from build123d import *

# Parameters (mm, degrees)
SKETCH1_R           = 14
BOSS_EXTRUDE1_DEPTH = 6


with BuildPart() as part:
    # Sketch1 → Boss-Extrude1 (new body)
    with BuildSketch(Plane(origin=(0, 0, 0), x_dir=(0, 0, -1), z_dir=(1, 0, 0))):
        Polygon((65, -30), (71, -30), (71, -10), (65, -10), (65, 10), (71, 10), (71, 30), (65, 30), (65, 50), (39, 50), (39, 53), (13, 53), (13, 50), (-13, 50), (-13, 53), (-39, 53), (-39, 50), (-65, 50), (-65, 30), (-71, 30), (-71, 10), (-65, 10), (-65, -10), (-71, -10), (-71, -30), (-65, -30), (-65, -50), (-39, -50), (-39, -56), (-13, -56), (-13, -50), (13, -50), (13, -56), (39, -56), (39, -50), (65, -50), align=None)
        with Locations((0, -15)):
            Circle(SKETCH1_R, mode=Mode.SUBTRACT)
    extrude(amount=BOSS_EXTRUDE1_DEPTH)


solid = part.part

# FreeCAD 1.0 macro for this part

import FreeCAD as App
import Part
import Sketcher
Q = App.Units.Quantity

doc = App.newDocument("Part")
body = doc.addObject("PartDesign::Body", "Body")

sketch1 = body.newObject("Sketcher::SketchObject", "Sketch")
sketch1.AttachmentSupport = (doc.getObject("YZ_Plane"), [""])
sketch1.MapMode = "FlatFace"
sketch1.addGeometry(Part.LineSegment(App.Vector(-30, -65, 0), App.Vector(-30, -71, 0)), False)
sketch1.addGeometry(Part.LineSegment(App.Vector(-30, -71, 0), App.Vector(-10, -71, 0)), False)
sketch1.addGeometry(Part.LineSegment(App.Vector(-10, -71, 0), App.Vector(-10, -65, 0)), False)
sketch1.addGeometry(Part.LineSegment(App.Vector(-10, -65, 0), App.Vector(10, -65, 0)), False)
sketch1.addGeometry(Part.LineSegment(App.Vector(10, -65, 0), App.Vector(10, -71, 0)), False)
sketch1.addGeometry(Part.LineSegment(App.Vector(10, -71, 0), App.Vector(30, -71, 0)), False)
sketch1.addGeometry(Part.LineSegment(App.Vector(30, -71, 0), App.Vector(30, -65, 0)), False)
sketch1.addGeometry(Part.LineSegment(App.Vector(30, -65, 0), App.Vector(50, -65, 0)), False)
sketch1.addGeometry(Part.LineSegment(App.Vector(50, -65, 0), App.Vector(50, -39, 0)), False)
sketch1.addGeometry(Part.LineSegment(App.Vector(50, -39, 0), App.Vector(53, -39, 0)), False)
sketch1.addGeometry(Part.LineSegment(App.Vector(53, -39, 0), App.Vector(53, -13, 0)), False)
sketch1.addGeometry(Part.LineSegment(App.Vector(53, -13, 0), App.Vector(50, -13, 0)), False)
sketch1.addGeometry(Part.LineSegment(App.Vector(50, -13, 0), App.Vector(50, 13, 0)), False)
sketch1.addGeometry(Part.LineSegment(App.Vector(50, 13, 0), App.Vector(53, 13, 0)), False)
sketch1.addGeometry(Part.LineSegment(App.Vector(53, 13, 0), App.Vector(53, 39, 0)), False)
sketch1.addGeometry(Part.LineSegment(App.Vector(53, 39, 0), App.Vector(50, 39, 0)), False)
sketch1.addGeometry(Part.LineSegment(App.Vector(50, 39, 0), App.Vector(50, 65, 0)), False)
sketch1.addGeometry(Part.LineSegment(App.Vector(50, 65, 0), App.Vector(30, 65, 0)), False)
sketch1.addGeometry(Part.LineSegment(App.Vector(30, 65, 0), App.Vector(30, 71, 0)), False)
sketch1.addGeometry(Part.LineSegment(App.Vector(30, 71, 0), App.Vector(10, 71, 0)), False)
sketch1.addGeometry(Part.LineSegment(App.Vector(10, 71, 0), App.Vector(10, 65, 0)), False)
sketch1.addGeometry(Part.LineSegment(App.Vector(10, 65, 0), App.Vector(-10, 65, 0)), False)
sketch1.addGeometry(Part.LineSegment(App.Vector(-10, 65, 0), App.Vector(-10, 71, 0)), False)
sketch1.addGeometry(Part.LineSegment(App.Vector(-10, 71, 0), App.Vector(-30, 71, 0)), False)
sketch1.addGeometry(Part.LineSegment(App.Vector(-30, 71, 0), App.Vector(-30, 65, 0)), False)
sketch1.addGeometry(Part.LineSegment(App.Vector(-30, 65, 0), App.Vector(-50, 65, 0)), False)
sketch1.addGeometry(Part.LineSegment(App.Vector(-50, 65, 0), App.Vector(-50, 39, 0)), False)
sketch1.addGeometry(Part.LineSegment(App.Vector(-50, 39, 0), App.Vector(-56, 39, 0)), False)
sketch1.addGeometry(Part.LineSegment(App.Vector(-56, 39, 0), App.Vector(-56, 13, 0)), False)
sketch1.addGeometry(Part.LineSegment(App.Vector(-56, 13, 0), App.Vector(-50, 13, 0)), False)
sketch1.addGeometry(Part.LineSegment(App.Vector(-50, 13, 0), App.Vector(-50, -13, 0)), False)
sketch1.addGeometry(Part.LineSegment(App.Vector(-50, -13, 0), App.Vector(-56, -13, 0)), False)
sketch1.addGeometry(Part.LineSegment(App.Vector(-56, -13, 0), App.Vector(-56, -39, 0)), False)
sketch1.addGeometry(Part.LineSegment(App.Vector(-56, -39, 0), App.Vector(-50, -39, 0)), False)
sketch1.addGeometry(Part.LineSegment(App.Vector(-50, -39, 0), App.Vector(-50, -65, 0)), False)
sketch1.addGeometry(Part.LineSegment(App.Vector(-50, -65, 0), App.Vector(-30, -65, 0)), False)
sketch1.addGeometry(Part.Circle(App.Vector(-15, 0, 0), App.Vector(0, 0, 1), 14), False)
sketch1.addConstraint(Sketcher.Constraint("Coincident", 0, 2, 1, 1))
sketch1.addConstraint(Sketcher.Constraint("Coincident", 1, 2, 2, 1))
sketch1.addConstraint(Sketcher.Constraint("Coincident", 2, 2, 3, 1))
sketch1.addConstraint(Sketcher.Constraint("Coincident", 3, 2, 4, 1))
sketch1.addConstraint(Sketcher.Constraint("Coincident", 4, 2, 5, 1))
sketch1.addConstraint(Sketcher.Constraint("Coincident", 5, 2, 6, 1))
sketch1.addConstraint(Sketcher.Constraint("Coincident", 6, 2, 7, 1))
sketch1.addConstraint(Sketcher.Constraint("Coincident", 7, 2, 8, 1))
sketch1.addConstraint(Sketcher.Constraint("Coincident", 8, 2, 9, 1))
sketch1.addConstraint(Sketcher.Constraint("Coincident", 9, 2, 10, 1))
sketch1.addConstraint(Sketcher.Constraint("Coincident", 10, 2, 11, 1))
sketch1.addConstraint(Sketcher.Constraint("Coincident", 11, 2, 12, 1))
sketch1.addConstraint(Sketcher.Constraint("Coincident", 12, 2, 13, 1))
sketch1.addConstraint(Sketcher.Constraint("Coincident", 13, 2, 14, 1))
sketch1.addConstraint(Sketcher.Constraint("Coincident", 14, 2, 15, 1))
sketch1.addConstraint(Sketcher.Constraint("Coincident", 15, 2, 16, 1))
sketch1.addConstraint(Sketcher.Constraint("Coincident", 16, 2, 17, 1))
sketch1.addConstraint(Sketcher.Constraint("Coincident", 17, 2, 18, 1))
sketch1.addConstraint(Sketcher.Constraint("Coincident", 18, 2, 19, 1))
sketch1.addConstraint(Sketcher.Constraint("Coincident", 19, 2, 20, 1))
sketch1.addConstraint(Sketcher.Constraint("Coincident", 20, 2, 21, 1))
sketch1.addConstraint(Sketcher.Constraint("Coincident", 21, 2, 22, 1))
sketch1.addConstraint(Sketcher.Constraint("Coincident", 22, 2, 23, 1))
sketch1.addConstraint(Sketcher.Constraint("Coincident", 23, 2, 24, 1))
sketch1.addConstraint(Sketcher.Constraint("Coincident", 24, 2, 25, 1))
sketch1.addConstraint(Sketcher.Constraint("Coincident", 25, 2, 26, 1))
sketch1.addConstraint(Sketcher.Constraint("Coincident", 26, 2, 27, 1))
sketch1.addConstraint(Sketcher.Constraint("Coincident", 27, 2, 28, 1))
sketch1.addConstraint(Sketcher.Constraint("Coincident", 28, 2, 29, 1))
sketch1.addConstraint(Sketcher.Constraint("Coincident", 29, 2, 30, 1))
sketch1.addConstraint(Sketcher.Constraint("Coincident", 30, 2, 31, 1))
sketch1.addConstraint(Sketcher.Constraint("Coincident", 31, 2, 32, 1))
sketch1.addConstraint(Sketcher.Constraint("Coincident", 32, 2, 33, 1))
sketch1.addConstraint(Sketcher.Constraint("Coincident", 33, 2, 34, 1))
sketch1.addConstraint(Sketcher.Constraint("Coincident", 34, 2, 35, 1))
sketch1.addConstraint(Sketcher.Constraint("Coincident", 35, 2, 0, 1))
sketch1.addConstraint(Sketcher.Constraint("Vertical", 0))
sketch1.addConstraint(Sketcher.Constraint("Horizontal", 1))
sketch1.addConstraint(Sketcher.Constraint("Vertical", 2))
sketch1.addConstraint(Sketcher.Constraint("Horizontal", 3))
sketch1.addConstraint(Sketcher.Constraint("Vertical", 4))
sketch1.addConstraint(Sketcher.Constraint("Horizontal", 5))
sketch1.addConstraint(Sketcher.Constraint("Vertical", 6))
sketch1.addConstraint(Sketcher.Constraint("Horizontal", 7))
sketch1.addConstraint(Sketcher.Constraint("Vertical", 8))
sketch1.addConstraint(Sketcher.Constraint("Horizontal", 9))
sketch1.addConstraint(Sketcher.Constraint("Vertical", 10))
sketch1.addConstraint(Sketcher.Constraint("Horizontal", 11))
sketch1.addConstraint(Sketcher.Constraint("Vertical", 12))
sketch1.addConstraint(Sketcher.Constraint("Horizontal", 13))
sketch1.addConstraint(Sketcher.Constraint("Vertical", 14))
sketch1.addConstraint(Sketcher.Constraint("Horizontal", 15))
sketch1.addConstraint(Sketcher.Constraint("Vertical", 16))
sketch1.addConstraint(Sketcher.Constraint("Horizontal", 17))
sketch1.addConstraint(Sketcher.Constraint("Vertical", 18))
sketch1.addConstraint(Sketcher.Constraint("Horizontal", 19))
sketch1.addConstraint(Sketcher.Constraint("Vertical", 20))
sketch1.addConstraint(Sketcher.Constraint("Horizontal", 21))
sketch1.addConstraint(Sketcher.Constraint("Vertical", 22))
sketch1.addConstraint(Sketcher.Constraint("Horizontal", 23))
sketch1.addConstraint(Sketcher.Constraint("Vertical", 24))
sketch1.addConstraint(Sketcher.Constraint("Horizontal", 25))
sketch1.addConstraint(Sketcher.Constraint("Vertical", 26))
sketch1.addConstraint(Sketcher.Constraint("Horizontal", 27))
sketch1.addConstraint(Sketcher.Constraint("Vertical", 28))
sketch1.addConstraint(Sketcher.Constraint("Horizontal", 29))
sketch1.addConstraint(Sketcher.Constraint("Vertical", 30))
sketch1.addConstraint(Sketcher.Constraint("Horizontal", 31))
sketch1.addConstraint(Sketcher.Constraint("Vertical", 32))
sketch1.addConstraint(Sketcher.Constraint("Horizontal", 33))
sketch1.addConstraint(Sketcher.Constraint("Vertical", 34))
sketch1.addConstraint(Sketcher.Constraint("Horizontal", 35))
sketch1.addConstraint(Sketcher.Constraint("Symmetric", 0, 2, 18, 2, -1, 1))
sketch1.addConstraint(Sketcher.Constraint("Symmetric", 2, 2, 20, 2, -1, 1))
sketch1.addConstraint(Sketcher.Constraint("Symmetric", 4, 2, 22, 2, -1, 1))
sketch1.addConstraint(Sketcher.Constraint("Symmetric", 6, 2, 24, 2, -1, 1))
sketch1.addConstraint(Sketcher.Constraint("Symmetric", 8, 2, 26, 2, -1, 1))
sketch1.addConstraint(Sketcher.Constraint("Symmetric", 11, 2, 29, 2, -1, 1))
sketch1.addConstraint(Sketcher.Constraint("Symmetric", 15, 2, 33, 2, -1, 1))
sketch1.addConstraint(Sketcher.Constraint("Symmetric", 1, 2, 4, 2, -2))
sketch1.addConstraint(Sketcher.Constraint("Symmetric", 17, 2, 24, 2, -2))
sketch1.addConstraint(Sketcher.Constraint("Symmetric", 15, 2, 26, 2, -2))
sketch1.addConstraint(Sketcher.Constraint("Symmetric", 10, 2, 13, 2, -1))
sketch1.addConstraint(Sketcher.Constraint("Symmetric", 28, 2, 31, 2, -1))
sketch1.addConstraint(Sketcher.Constraint("PointOnObject", 36, 3, -1))
sketch1.addConstraint(Sketcher.Constraint("Horizontal", 3, 2, 6, 2))
sketch1.addConstraint(Sketcher.Constraint("Horizontal", 7, 2, 34, 2))
sketch1.addConstraint(Sketcher.Constraint("Vertical", 8, 2, 11, 2))
sketch1.addConstraint(Sketcher.Constraint("Equal", 1, 3))
sketch1.addConstraint(Sketcher.Constraint("Equal", 5, 7))
sketch1.addConstraint(Sketcher.Constraint("Equal", 33, 0))
sketch1.addConstraint(Sketcher.Constraint("Equal", 8, 10))
sketch1.addConstraint(Sketcher.Constraint("Equal", 10, 12))
sketch1.addConstraint(Sketcher.Constraint("Diameter", 36, Q("28 mm")))
sketch1.addConstraint(Sketcher.Constraint("DistanceX", 1, 1, 1, 2, Q("20 mm")))
sketch1.addConstraint(Sketcher.Constraint("DistanceX", 9, 1, 9, 2, Q("3 mm")))
sketch1.addConstraint(Sketcher.Constraint("DistanceX", 27, 2, 27, 1, Q("6 mm")))
sketch1.addConstraint(Sketcher.Constraint("DistanceY", 8, 1, 8, 2, Q("26 mm")))
sketch1.addConstraint(Sketcher.Constraint("DistanceX", 36, 3, -1, 1, Q("15 mm")))
pad1 = body.newObject("PartDesign::Pad", "Pad")
pad1.Profile = sketch1
pad1.Length = 6

doc.recompute()
